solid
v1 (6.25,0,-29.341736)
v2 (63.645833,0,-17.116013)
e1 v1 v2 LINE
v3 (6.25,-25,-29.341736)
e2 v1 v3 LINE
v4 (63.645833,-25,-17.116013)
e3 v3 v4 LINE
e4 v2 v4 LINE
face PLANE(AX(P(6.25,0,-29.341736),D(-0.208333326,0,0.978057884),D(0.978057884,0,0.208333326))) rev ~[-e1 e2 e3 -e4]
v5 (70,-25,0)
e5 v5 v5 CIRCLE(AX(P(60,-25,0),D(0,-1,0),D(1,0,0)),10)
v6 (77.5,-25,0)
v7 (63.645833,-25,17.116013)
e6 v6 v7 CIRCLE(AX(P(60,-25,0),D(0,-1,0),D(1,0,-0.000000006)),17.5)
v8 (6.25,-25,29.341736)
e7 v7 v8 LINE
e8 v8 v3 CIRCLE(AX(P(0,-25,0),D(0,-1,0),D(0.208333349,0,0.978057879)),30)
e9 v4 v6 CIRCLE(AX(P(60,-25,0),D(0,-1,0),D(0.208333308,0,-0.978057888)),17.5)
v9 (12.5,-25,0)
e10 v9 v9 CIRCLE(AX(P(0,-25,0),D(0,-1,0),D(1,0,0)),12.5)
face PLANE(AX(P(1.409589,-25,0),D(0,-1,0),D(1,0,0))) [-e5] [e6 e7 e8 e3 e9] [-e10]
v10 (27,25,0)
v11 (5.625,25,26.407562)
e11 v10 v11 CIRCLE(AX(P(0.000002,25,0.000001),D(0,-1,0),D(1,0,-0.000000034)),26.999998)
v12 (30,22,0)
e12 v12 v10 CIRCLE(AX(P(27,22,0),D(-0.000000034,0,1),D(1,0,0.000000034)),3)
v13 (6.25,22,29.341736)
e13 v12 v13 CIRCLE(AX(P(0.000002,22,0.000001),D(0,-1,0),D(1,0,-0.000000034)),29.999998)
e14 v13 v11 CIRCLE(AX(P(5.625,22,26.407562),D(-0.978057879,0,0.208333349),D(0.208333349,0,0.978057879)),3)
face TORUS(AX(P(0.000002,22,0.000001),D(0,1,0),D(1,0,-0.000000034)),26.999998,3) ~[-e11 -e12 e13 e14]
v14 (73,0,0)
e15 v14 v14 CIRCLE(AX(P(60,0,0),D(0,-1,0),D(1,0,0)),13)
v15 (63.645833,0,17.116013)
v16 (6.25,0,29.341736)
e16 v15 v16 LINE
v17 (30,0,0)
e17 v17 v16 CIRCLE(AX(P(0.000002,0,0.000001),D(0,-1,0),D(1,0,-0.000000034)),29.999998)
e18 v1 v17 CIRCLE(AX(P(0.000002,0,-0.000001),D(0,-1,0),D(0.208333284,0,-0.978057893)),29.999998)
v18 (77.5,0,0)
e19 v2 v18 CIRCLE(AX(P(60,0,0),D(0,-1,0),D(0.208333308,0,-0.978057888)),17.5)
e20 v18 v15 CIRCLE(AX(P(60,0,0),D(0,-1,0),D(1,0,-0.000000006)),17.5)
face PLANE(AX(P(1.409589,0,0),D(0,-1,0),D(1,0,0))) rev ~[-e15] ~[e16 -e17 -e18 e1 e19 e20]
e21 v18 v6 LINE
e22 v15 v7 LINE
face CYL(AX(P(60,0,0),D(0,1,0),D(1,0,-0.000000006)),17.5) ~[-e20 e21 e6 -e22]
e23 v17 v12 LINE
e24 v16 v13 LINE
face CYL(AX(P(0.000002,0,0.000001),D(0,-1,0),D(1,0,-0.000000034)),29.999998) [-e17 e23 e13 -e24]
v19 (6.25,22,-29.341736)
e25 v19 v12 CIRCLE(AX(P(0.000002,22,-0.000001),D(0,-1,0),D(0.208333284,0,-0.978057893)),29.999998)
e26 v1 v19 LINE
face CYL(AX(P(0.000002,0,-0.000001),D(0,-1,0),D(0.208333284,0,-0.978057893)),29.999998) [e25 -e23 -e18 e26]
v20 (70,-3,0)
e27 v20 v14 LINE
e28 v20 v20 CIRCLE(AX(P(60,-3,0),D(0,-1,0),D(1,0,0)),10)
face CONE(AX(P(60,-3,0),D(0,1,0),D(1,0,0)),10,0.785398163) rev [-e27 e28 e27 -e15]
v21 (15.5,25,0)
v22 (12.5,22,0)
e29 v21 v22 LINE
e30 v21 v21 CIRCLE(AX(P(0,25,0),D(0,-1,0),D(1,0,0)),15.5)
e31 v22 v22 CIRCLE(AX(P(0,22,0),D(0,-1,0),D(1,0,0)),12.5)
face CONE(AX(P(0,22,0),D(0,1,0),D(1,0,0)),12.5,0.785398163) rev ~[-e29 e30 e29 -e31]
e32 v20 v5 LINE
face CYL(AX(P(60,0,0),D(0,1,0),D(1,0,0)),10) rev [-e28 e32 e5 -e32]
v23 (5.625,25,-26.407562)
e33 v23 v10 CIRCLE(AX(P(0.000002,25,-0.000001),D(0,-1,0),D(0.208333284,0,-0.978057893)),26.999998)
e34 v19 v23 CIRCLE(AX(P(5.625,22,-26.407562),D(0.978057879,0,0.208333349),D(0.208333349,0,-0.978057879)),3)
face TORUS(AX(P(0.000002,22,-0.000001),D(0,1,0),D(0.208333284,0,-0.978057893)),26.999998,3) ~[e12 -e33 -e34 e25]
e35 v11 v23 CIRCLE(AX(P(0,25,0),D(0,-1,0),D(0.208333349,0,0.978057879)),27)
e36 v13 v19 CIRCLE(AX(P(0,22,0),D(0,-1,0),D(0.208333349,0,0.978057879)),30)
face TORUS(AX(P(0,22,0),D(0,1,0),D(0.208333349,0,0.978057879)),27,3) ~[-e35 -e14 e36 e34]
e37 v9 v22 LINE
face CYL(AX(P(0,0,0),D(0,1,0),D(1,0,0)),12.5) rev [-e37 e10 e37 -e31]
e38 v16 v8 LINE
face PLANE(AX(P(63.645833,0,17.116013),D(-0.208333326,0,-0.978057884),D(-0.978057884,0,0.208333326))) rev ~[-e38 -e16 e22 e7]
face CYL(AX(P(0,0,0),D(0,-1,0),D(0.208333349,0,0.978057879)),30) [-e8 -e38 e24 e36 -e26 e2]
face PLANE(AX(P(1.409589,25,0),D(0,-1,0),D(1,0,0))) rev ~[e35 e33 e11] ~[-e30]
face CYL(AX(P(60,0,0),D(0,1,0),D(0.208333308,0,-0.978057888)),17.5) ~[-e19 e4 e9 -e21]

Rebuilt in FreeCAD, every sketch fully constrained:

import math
import FreeCAD as App
import Part
import Sketcher
from FreeCAD import Vector
Q = App.Units.Quantity


def edges_at(feature, points):
    """Names of the edges that pass closest to the given points."""
    edges = feature.Shape.Edges
    near = lambda p: min(range(len(edges)), key=lambda i: edges[i].distToShape(Part.Vertex(*p))[0])
    return sorted({f"Edge{near(p) + 1}" for p in points})

doc = App.newDocument("Part")
body = doc.addObject("PartDesign::Body", "Body")

sketch1 = doc.addObject("Sketcher::SketchObject", "Sketch")
body.addObject(sketch1)
sketch1.AttachmentSupport = (doc.XZ_Plane, [""])
sketch1.MapMode = "FlatFace"
sketch1.addGeometry([
    Part.ArcOfCircle(Part.Circle(Vector(0, 0, 0), Vector(0, 0, 1), 30), math.radians(78), math.radians(282)),
    Part.LineSegment(Vector(6, -29, 0), Vector(64, -17, 0)),
    Part.ArcOfCircle(Part.Circle(Vector(60, 0, 0), Vector(0, 0, 1), 17), math.radians(-78), math.radians(0)),
    Part.ArcOfCircle(Part.Circle(Vector(60, 0, 0), Vector(0, 0, 1), 17), math.radians(0), math.radians(78)),
    Part.LineSegment(Vector(64, 17, 0), Vector(6, 29, 0)),
    Part.Circle(Vector(0, 0, 0), Vector(0, 0, 1), 12),
    Part.Circle(Vector(60, 0, 0), Vector(0, 0, 1), 10),
], False)
sketch1.addConstraint([
    Sketcher.Constraint("Tangent", 0, 2, 1, 1),
    Sketcher.Constraint("Tangent", 1, 2, 2, 1),
    Sketcher.Constraint("Tangent", 2, 2, 3, 1),
    Sketcher.Constraint("Tangent", 3, 2, 4, 1),
    Sketcher.Constraint("Tangent", 4, 2, 0, 1),
    Sketcher.Constraint("Coincident", 0, 3, -1, 1),
    Sketcher.Constraint("Coincident", 5, 3, -1, 1),
    Sketcher.Constraint("Coincident", 6, 3, 2, 3),
    Sketcher.Constraint("Equal", 2, 3),
    Sketcher.Constraint("PointOnObject", 2, 3, -1),
    Sketcher.Constraint("PointOnObject", 2, 2, -1),
    Sketcher.Constraint("Diameter", 5, Q("25 mm")),
    Sketcher.Constraint("Diameter", 6, Q("20 mm")),
    Sketcher.Constraint("Radius", 0, Q("30 mm")),
    Sketcher.Constraint("Radius", 2, Q("17.5 mm")),
    Sketcher.Constraint("DistanceX", -1, 1, 2, 3, Q("60 mm")),
])
pad1 = doc.addObject("PartDesign::Pad", "Pad")
body.addObject(pad1)
pad1.Profile = sketch1
pad1.Length = 25

sketch2 = doc.addObject("Sketcher::SketchObject", "Sketch001")
body.addObject(sketch2)
sketch2.AttachmentSupport = (doc.XZ_Plane, [""])
sketch2.MapMode = "FlatFace"
sketch2.addGeometry([
    Part.ArcOfCircle(Part.Circle(Vector(0, 0, 0), Vector(0, 0, 1), 30), math.radians(-78), math.radians(0)),
    Part.ArcOfCircle(Part.Circle(Vector(0, 0, 0), Vector(0, 0, 1), 30), math.radians(0), math.radians(78)),
    Part.ArcOfCircle(Part.Circle(Vector(0, 0, 0), Vector(0, 0, 1), 30), math.radians(78), math.radians(282)),
    Part.Circle(Vector(0, 0, 0), Vector(0, 0, 1), 12),
], False)
sketch2.addConstraint([
    Sketcher.Constraint("Tangent", 0, 2, 1, 1),
    Sketcher.Constraint("Tangent", 1, 2, 2, 1),
    Sketcher.Constraint("Tangent", 2, 2, 0, 1),
    Sketcher.Constraint("Coincident", 0, 3, -1, 1),
    Sketcher.Constraint("Coincident", 3, 3, -1, 1),
    Sketcher.Constraint("PointOnObject", 0, 2, -1),
    Sketcher.Constraint("Vertical", 1, 2, 2, 2),
    Sketcher.Constraint("Diameter", 3, Q("25 mm")),
    Sketcher.Constraint("Radius", 0, Q("29.999998 mm")),
    Sketcher.Constraint("DistanceX", -1, 1, 1, 2, Q("6.25 mm")),
])
pad2 = doc.addObject("PartDesign::Pad", "Pad001")
body.addObject(pad2)
pad2.Profile = sketch2
pad2.Length = 25
pad2.Reversed = True
doc.recompute()

fillet = doc.addObject("PartDesign::Fillet", "Fillet")
body.addObject(fillet)
fillet.Base = (pad2, edges_at(pad2, [(-30, 25, 0)]))
fillet.Radius = 3
doc.recompute()

chamfer = doc.addObject("PartDesign::Chamfer", "Chamfer")
body.addObject(chamfer)
chamfer.Base = (fillet, edges_at(fillet, [(-12.5, 25, 0), (50, 0, 0)]))
chamfer.Size = 3

doc.recompute()
